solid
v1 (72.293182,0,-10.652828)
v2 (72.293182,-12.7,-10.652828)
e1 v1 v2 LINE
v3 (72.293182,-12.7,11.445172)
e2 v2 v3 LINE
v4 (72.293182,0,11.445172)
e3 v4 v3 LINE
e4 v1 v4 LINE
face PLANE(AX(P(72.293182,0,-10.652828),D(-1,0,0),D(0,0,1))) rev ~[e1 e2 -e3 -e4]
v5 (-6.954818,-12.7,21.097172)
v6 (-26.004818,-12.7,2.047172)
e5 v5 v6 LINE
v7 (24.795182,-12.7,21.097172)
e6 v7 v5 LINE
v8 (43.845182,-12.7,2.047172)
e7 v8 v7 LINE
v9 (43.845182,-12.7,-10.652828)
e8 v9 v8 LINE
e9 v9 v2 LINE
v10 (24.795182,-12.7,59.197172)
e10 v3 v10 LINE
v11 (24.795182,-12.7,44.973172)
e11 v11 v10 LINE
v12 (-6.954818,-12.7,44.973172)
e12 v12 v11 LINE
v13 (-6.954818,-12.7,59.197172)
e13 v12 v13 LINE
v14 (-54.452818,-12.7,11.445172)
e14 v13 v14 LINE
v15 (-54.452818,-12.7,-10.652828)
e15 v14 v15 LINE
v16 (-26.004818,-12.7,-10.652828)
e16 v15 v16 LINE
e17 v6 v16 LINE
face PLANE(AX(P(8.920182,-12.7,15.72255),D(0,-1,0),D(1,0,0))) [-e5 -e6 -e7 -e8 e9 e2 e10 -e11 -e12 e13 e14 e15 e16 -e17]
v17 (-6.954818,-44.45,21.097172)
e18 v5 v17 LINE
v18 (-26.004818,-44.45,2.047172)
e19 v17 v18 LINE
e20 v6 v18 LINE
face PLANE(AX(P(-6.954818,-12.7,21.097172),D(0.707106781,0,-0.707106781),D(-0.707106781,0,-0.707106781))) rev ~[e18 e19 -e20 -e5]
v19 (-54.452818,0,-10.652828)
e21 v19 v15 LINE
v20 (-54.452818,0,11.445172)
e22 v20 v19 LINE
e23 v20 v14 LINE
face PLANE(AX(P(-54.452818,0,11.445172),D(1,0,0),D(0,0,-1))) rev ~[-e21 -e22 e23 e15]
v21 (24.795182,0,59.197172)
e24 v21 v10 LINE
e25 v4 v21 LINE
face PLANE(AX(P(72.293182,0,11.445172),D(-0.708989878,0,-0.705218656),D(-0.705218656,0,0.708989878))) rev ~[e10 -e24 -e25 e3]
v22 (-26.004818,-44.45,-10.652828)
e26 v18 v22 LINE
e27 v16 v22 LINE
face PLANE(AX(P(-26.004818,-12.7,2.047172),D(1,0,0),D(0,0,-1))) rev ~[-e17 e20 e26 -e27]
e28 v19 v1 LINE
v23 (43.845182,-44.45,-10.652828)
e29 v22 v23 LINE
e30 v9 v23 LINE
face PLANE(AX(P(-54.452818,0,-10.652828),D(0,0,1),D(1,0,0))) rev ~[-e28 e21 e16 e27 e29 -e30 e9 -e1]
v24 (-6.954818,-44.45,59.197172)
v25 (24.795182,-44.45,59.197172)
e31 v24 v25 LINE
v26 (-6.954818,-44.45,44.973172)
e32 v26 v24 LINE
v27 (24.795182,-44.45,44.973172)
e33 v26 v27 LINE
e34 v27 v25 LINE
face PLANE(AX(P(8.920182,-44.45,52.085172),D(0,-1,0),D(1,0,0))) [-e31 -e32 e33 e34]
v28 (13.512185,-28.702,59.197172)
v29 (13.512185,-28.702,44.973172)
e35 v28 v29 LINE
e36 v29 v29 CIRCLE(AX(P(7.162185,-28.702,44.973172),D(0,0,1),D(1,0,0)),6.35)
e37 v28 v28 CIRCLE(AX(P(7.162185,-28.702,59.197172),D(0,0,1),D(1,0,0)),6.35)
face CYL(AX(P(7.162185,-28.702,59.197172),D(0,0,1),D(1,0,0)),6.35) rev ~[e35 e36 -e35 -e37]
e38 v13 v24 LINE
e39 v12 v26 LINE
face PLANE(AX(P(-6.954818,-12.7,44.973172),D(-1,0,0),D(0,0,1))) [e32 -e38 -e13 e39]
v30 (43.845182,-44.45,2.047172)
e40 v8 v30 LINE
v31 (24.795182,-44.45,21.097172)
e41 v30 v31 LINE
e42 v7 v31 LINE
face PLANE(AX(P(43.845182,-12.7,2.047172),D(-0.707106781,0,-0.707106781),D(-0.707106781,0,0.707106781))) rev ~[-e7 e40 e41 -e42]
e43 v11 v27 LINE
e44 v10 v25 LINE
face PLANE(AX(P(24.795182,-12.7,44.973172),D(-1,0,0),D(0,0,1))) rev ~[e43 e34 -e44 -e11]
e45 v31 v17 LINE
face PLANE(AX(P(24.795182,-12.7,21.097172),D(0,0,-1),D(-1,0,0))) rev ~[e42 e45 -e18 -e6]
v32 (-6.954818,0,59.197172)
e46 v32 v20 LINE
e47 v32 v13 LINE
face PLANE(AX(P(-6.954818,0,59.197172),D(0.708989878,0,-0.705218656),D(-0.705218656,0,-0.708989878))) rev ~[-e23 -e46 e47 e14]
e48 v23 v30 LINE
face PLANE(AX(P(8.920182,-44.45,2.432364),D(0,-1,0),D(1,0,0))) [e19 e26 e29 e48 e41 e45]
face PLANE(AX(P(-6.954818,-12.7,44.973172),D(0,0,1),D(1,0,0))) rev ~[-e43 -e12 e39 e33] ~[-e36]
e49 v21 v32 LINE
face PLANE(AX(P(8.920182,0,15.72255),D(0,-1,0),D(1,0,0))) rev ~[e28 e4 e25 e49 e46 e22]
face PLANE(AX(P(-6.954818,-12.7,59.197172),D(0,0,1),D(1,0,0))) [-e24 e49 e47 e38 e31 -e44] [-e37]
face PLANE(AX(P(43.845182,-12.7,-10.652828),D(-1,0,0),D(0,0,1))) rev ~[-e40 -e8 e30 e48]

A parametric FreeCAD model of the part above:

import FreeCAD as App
import Part
import Sketcher

V = App.Vector
Q = App.Units.Quantity

doc = App.newDocument("Part")
params = doc.addObject("Spreadsheet::Sheet", "Params")
for row, (alias, value) in enumerate([
    ("sketch1_width", "1.25 in"),
    ("sketch1_width2", "4.99 in"),
    ("sketch1_height", "0.87 in"),
    ("pad1_length", "0.5 in"),
    ("sketch2_height", "0.5 in"),
    ("sketch2_width", "1.25 in"),
    ("sketch2_height2", "0.56 in"),
    ("pad2_length", "1.25 in"),
    ("sketch3_diameter", "0.5 in"),
    ("pocket1_length", "1 in"),
], start=1):
    params.set(f"A{row}", alias)
    params.set(f"B{row}", "=" + value)
    params.setAlias(f"B{row}", alias)

body = doc.addObject("PartDesign::Body", "Body")

sketch1 = body.newObject("Sketcher::SketchObject", "Sketch")
sketch1.AttachmentSupport = (doc.getObject("XZ_Plane"), [""])
sketch1.MapMode = "FlatFace"
sketch1.addGeometry(Part.LineSegment(V(24.795182, 59.197172, 0), V(-6.954818, 59.197172, 0)), False)
sketch1.addGeometry(Part.LineSegment(V(-6.954818, 59.197172, 0), V(-54.452818, 11.445172, 0)), False)
sketch1.addGeometry(Part.LineSegment(V(-54.452818, 11.445172, 0), V(-54.452818, -10.652828, 0)), False)
sketch1.addGeometry(Part.LineSegment(V(-54.452818, -10.652828, 0), V(72.293182, -10.652828, 0)), False)
sketch1.addGeometry(Part.LineSegment(V(72.293182, -10.652828, 0), V(72.293182, 11.445172, 0)), False)
sketch1.addGeometry(Part.LineSegment(V(72.293182, 11.445172, 0), V(24.795182, 59.197172, 0)), False)
sketch1.addConstraint(Sketcher.Constraint("Coincident", 0, 2, 1, 1))
sketch1.addConstraint(Sketcher.Constraint("Coincident", 1, 2, 2, 1))
sketch1.addConstraint(Sketcher.Constraint("Coincident", 2, 2, 3, 1))
sketch1.addConstraint(Sketcher.Constraint("Coincident", 3, 2, 4, 1))
sketch1.addConstraint(Sketcher.Constraint("Coincident", 4, 2, 5, 1))
sketch1.addConstraint(Sketcher.Constraint("Coincident", 5, 2, 0, 1))
sketch1.addConstraint(Sketcher.Constraint("Horizontal", 0))
sketch1.addConstraint(Sketcher.Constraint("Vertical", 2))
sketch1.addConstraint(Sketcher.Constraint("Horizontal", 3))
sketch1.addConstraint(Sketcher.Constraint("Vertical", 4))
sketch1.addConstraint(Sketcher.Constraint("Horizontal", 1, 2, 4, 2))
sketch1.addConstraint(Sketcher.Constraint("Equal", 1, 5))
sketch1.addConstraint(Sketcher.Constraint("DistanceX", 0, 2, 0, 1, Q("1.25 in")))
sketch1.addConstraint(Sketcher.Constraint("DistanceX", 3, 1, 3, 2, Q("4.99 in")))
sketch1.addConstraint(Sketcher.Constraint("DistanceY", 2, 2, 2, 1, Q("0.87 in")))
sketch1.addConstraint(Sketcher.Constraint("DistanceY", 1, 2, 0, 2, Q("1.88 in")))
sketch1.addConstraint(Sketcher.Constraint("DistanceX", 0, 2, -1, 1, Q("6.954818 mm")))
sketch1.addConstraint(Sketcher.Constraint("DistanceY", -1, 1, 0, 2, Q("59.197172 mm")))
sketch1.setExpression("Constraints[12]", "Params.sketch1_width")
sketch1.setExpression("Constraints[13]", "Params.sketch1_width2")
sketch1.setExpression("Constraints[14]", "Params.sketch1_height")
pad1 = body.newObject("PartDesign::Pad", "Pad")
pad1.Profile = sketch1
pad1.setExpression("Length", "Params.pad1_length")

sketch2 = body.newObject("Sketcher::SketchObject", "Sketch001")
sketch2.AttachmentSupport = (doc.getObject("XZ_Plane"), [""])
sketch2.MapMode = "FlatFace"
sketch2.AttachmentOffset = App.Placement(V(0, 0, 0.5 * 25.4), App.Rotation())
sketch2.addGeometry(Part.LineSegment(V(-6.954818, 59.197172, 0), V(-6.954818, 44.973172, 0)), False)
sketch2.addGeometry(Part.LineSegment(V(-6.954818, 44.973172, 0), V(24.795182, 44.973172, 0)), False)
sketch2.addGeometry(Part.LineSegment(V(24.795182, 44.973172, 0), V(24.795182, 59.197172, 0)), False)
sketch2.addGeometry(Part.LineSegment(V(24.795182, 59.197172, 0), V(-6.954818, 59.197172, 0)), False)
sketch2.addGeometry(Part.LineSegment(V(-26.004818, 2.047172, 0), V(-26.004818, -10.652828, 0)), False)
sketch2.addGeometry(Part.LineSegment(V(-26.004818, -10.652828, 0), V(43.845182, -10.652828, 0)), False)
sketch2.addGeometry(Part.LineSegment(V(43.845182, -10.652828, 0), V(43.845182, 2.047172, 0)), False)
sketch2.addGeometry(Part.LineSegment(V(43.845182, 2.047172, 0), V(24.795182, 21.097172, 0)), False)
sketch2.addGeometry(Part.LineSegment(V(24.795182, 21.097172, 0), V(-6.954818, 21.097172, 0)), False)
sketch2.addGeometry(Part.LineSegment(V(-6.954818, 21.097172, 0), V(-26.004818, 2.047172, 0)), False)
sketch2.addConstraint(Sketcher.Constraint("Coincident", 0, 2, 1, 1))
sketch2.addConstraint(Sketcher.Constraint("Coincident", 1, 2, 2, 1))
sketch2.addConstraint(Sketcher.Constraint("Coincident", 2, 2, 3, 1))
sketch2.addConstraint(Sketcher.Constraint("Coincident", 3, 2, 0, 1))
sketch2.addConstraint(Sketcher.Constraint("Coincident", 4, 2, 5, 1))
sketch2.addConstraint(Sketcher.Constraint("Coincident", 5, 2, 6, 1))
sketch2.addConstraint(Sketcher.Constraint("Coincident", 6, 2, 7, 1))
sketch2.addConstraint(Sketcher.Constraint("Coincident", 7, 2, 8, 1))
sketch2.addConstraint(Sketcher.Constraint("Coincident", 8, 2, 9, 1))
sketch2.addConstraint(Sketcher.Constraint("Coincident", 9, 2, 4, 1))
sketch2.addConstraint(Sketcher.Constraint("Vertical", 0))
sketch2.addConstraint(Sketcher.Constraint("Horizontal", 1))
sketch2.addConstraint(Sketcher.Constraint("Vertical", 2))
sketch2.addConstraint(Sketcher.Constraint("Horizontal", 3))
sketch2.addConstraint(Sketcher.Constraint("Vertical", 4))
sketch2.addConstraint(Sketcher.Constraint("Horizontal", 5))
sketch2.addConstraint(Sketcher.Constraint("Vertical", 6))
sketch2.addConstraint(Sketcher.Constraint("Horizontal", 8))
sketch2.addConstraint(Sketcher.Constraint("Perpendicular", 7, 9))
sketch2.addConstraint(Sketcher.Constraint("Horizontal", 6, 2, 9, 2))
sketch2.addConstraint(Sketcher.Constraint("Vertical", 2, 2, 7, 2))
sketch2.addConstraint(Sketcher.Constraint("Vertical", 3, 2, 8, 2))
sketch2.addConstraint(Sketcher.Constraint("Equal", 7, 9))
sketch2.addConstraint(Sketcher.Constraint("DistanceY", 4, 2, 4, 1, Q("0.5 in")))
sketch2.addConstraint(Sketcher.Constraint("DistanceX", 4, 2, 1, 2, Q("2 in")))
sketch2.addConstraint(Sketcher.Constraint("DistanceX", 1, 1, 1, 2, Q("1.25 in")))
sketch2.addConstraint(Sketcher.Constraint("DistanceY", 0, 2, 0, 1, Q("0.56 in")))
sketch2.addConstraint(Sketcher.Constraint("DistanceY", 7, 2, 2, 2, Q("1.5 in")))
sketch2.addConstraint(Sketcher.Constraint("DistanceX", 0, 2, -1, 1, Q("6.954818 mm")))
sketch2.addConstraint(Sketcher.Constraint("DistanceY", -1, 1, 0, 2, Q("44.973172 mm")))
sketch2.setExpression("Constraints[23]", "Params.sketch2_height")
sketch2.setExpression("Constraints[25]", "Params.sketch2_width")
sketch2.setExpression("Constraints[26]", "Params.sketch2_height2")
pad2 = body.newObject("PartDesign::Pad", "Pad001")
pad2.Profile = sketch2
pad2.setExpression("Length", "Params.pad2_length")

sketch3 = body.newObject("Sketcher::SketchObject", "Sketch002")
sketch3.AttachmentSupport = (doc.getObject("XY_Plane"), [""])
sketch3.MapMode = "FlatFace"
sketch3.AttachmentOffset = App.Placement(V(0, 0, 59.197172), App.Rotation())
sketch3.addGeometry(Part.Circle(V(7.162185, -28.702, 0), V(0, 0, 1), 6.35), False)
sketch3.addConstraint(Sketcher.Constraint("Diameter", 0, Q("0.5 in")))
sketch3.addConstraint(Sketcher.Constraint("DistanceY", 0, 3, -1, 1, Q("1.13 in")))
sketch3.addConstraint(Sketcher.Constraint("DistanceX", -1, 1, 0, 3, Q("7.162185 mm")))
sketch3.setExpression("Constraints[0]", "Params.sketch3_diameter")
pocket1 = body.newObject("PartDesign::Pocket", "Pocket")
pocket1.Profile = sketch3
pocket1.setExpression("Length", "Params.pocket1_length")

doc.recompute()
